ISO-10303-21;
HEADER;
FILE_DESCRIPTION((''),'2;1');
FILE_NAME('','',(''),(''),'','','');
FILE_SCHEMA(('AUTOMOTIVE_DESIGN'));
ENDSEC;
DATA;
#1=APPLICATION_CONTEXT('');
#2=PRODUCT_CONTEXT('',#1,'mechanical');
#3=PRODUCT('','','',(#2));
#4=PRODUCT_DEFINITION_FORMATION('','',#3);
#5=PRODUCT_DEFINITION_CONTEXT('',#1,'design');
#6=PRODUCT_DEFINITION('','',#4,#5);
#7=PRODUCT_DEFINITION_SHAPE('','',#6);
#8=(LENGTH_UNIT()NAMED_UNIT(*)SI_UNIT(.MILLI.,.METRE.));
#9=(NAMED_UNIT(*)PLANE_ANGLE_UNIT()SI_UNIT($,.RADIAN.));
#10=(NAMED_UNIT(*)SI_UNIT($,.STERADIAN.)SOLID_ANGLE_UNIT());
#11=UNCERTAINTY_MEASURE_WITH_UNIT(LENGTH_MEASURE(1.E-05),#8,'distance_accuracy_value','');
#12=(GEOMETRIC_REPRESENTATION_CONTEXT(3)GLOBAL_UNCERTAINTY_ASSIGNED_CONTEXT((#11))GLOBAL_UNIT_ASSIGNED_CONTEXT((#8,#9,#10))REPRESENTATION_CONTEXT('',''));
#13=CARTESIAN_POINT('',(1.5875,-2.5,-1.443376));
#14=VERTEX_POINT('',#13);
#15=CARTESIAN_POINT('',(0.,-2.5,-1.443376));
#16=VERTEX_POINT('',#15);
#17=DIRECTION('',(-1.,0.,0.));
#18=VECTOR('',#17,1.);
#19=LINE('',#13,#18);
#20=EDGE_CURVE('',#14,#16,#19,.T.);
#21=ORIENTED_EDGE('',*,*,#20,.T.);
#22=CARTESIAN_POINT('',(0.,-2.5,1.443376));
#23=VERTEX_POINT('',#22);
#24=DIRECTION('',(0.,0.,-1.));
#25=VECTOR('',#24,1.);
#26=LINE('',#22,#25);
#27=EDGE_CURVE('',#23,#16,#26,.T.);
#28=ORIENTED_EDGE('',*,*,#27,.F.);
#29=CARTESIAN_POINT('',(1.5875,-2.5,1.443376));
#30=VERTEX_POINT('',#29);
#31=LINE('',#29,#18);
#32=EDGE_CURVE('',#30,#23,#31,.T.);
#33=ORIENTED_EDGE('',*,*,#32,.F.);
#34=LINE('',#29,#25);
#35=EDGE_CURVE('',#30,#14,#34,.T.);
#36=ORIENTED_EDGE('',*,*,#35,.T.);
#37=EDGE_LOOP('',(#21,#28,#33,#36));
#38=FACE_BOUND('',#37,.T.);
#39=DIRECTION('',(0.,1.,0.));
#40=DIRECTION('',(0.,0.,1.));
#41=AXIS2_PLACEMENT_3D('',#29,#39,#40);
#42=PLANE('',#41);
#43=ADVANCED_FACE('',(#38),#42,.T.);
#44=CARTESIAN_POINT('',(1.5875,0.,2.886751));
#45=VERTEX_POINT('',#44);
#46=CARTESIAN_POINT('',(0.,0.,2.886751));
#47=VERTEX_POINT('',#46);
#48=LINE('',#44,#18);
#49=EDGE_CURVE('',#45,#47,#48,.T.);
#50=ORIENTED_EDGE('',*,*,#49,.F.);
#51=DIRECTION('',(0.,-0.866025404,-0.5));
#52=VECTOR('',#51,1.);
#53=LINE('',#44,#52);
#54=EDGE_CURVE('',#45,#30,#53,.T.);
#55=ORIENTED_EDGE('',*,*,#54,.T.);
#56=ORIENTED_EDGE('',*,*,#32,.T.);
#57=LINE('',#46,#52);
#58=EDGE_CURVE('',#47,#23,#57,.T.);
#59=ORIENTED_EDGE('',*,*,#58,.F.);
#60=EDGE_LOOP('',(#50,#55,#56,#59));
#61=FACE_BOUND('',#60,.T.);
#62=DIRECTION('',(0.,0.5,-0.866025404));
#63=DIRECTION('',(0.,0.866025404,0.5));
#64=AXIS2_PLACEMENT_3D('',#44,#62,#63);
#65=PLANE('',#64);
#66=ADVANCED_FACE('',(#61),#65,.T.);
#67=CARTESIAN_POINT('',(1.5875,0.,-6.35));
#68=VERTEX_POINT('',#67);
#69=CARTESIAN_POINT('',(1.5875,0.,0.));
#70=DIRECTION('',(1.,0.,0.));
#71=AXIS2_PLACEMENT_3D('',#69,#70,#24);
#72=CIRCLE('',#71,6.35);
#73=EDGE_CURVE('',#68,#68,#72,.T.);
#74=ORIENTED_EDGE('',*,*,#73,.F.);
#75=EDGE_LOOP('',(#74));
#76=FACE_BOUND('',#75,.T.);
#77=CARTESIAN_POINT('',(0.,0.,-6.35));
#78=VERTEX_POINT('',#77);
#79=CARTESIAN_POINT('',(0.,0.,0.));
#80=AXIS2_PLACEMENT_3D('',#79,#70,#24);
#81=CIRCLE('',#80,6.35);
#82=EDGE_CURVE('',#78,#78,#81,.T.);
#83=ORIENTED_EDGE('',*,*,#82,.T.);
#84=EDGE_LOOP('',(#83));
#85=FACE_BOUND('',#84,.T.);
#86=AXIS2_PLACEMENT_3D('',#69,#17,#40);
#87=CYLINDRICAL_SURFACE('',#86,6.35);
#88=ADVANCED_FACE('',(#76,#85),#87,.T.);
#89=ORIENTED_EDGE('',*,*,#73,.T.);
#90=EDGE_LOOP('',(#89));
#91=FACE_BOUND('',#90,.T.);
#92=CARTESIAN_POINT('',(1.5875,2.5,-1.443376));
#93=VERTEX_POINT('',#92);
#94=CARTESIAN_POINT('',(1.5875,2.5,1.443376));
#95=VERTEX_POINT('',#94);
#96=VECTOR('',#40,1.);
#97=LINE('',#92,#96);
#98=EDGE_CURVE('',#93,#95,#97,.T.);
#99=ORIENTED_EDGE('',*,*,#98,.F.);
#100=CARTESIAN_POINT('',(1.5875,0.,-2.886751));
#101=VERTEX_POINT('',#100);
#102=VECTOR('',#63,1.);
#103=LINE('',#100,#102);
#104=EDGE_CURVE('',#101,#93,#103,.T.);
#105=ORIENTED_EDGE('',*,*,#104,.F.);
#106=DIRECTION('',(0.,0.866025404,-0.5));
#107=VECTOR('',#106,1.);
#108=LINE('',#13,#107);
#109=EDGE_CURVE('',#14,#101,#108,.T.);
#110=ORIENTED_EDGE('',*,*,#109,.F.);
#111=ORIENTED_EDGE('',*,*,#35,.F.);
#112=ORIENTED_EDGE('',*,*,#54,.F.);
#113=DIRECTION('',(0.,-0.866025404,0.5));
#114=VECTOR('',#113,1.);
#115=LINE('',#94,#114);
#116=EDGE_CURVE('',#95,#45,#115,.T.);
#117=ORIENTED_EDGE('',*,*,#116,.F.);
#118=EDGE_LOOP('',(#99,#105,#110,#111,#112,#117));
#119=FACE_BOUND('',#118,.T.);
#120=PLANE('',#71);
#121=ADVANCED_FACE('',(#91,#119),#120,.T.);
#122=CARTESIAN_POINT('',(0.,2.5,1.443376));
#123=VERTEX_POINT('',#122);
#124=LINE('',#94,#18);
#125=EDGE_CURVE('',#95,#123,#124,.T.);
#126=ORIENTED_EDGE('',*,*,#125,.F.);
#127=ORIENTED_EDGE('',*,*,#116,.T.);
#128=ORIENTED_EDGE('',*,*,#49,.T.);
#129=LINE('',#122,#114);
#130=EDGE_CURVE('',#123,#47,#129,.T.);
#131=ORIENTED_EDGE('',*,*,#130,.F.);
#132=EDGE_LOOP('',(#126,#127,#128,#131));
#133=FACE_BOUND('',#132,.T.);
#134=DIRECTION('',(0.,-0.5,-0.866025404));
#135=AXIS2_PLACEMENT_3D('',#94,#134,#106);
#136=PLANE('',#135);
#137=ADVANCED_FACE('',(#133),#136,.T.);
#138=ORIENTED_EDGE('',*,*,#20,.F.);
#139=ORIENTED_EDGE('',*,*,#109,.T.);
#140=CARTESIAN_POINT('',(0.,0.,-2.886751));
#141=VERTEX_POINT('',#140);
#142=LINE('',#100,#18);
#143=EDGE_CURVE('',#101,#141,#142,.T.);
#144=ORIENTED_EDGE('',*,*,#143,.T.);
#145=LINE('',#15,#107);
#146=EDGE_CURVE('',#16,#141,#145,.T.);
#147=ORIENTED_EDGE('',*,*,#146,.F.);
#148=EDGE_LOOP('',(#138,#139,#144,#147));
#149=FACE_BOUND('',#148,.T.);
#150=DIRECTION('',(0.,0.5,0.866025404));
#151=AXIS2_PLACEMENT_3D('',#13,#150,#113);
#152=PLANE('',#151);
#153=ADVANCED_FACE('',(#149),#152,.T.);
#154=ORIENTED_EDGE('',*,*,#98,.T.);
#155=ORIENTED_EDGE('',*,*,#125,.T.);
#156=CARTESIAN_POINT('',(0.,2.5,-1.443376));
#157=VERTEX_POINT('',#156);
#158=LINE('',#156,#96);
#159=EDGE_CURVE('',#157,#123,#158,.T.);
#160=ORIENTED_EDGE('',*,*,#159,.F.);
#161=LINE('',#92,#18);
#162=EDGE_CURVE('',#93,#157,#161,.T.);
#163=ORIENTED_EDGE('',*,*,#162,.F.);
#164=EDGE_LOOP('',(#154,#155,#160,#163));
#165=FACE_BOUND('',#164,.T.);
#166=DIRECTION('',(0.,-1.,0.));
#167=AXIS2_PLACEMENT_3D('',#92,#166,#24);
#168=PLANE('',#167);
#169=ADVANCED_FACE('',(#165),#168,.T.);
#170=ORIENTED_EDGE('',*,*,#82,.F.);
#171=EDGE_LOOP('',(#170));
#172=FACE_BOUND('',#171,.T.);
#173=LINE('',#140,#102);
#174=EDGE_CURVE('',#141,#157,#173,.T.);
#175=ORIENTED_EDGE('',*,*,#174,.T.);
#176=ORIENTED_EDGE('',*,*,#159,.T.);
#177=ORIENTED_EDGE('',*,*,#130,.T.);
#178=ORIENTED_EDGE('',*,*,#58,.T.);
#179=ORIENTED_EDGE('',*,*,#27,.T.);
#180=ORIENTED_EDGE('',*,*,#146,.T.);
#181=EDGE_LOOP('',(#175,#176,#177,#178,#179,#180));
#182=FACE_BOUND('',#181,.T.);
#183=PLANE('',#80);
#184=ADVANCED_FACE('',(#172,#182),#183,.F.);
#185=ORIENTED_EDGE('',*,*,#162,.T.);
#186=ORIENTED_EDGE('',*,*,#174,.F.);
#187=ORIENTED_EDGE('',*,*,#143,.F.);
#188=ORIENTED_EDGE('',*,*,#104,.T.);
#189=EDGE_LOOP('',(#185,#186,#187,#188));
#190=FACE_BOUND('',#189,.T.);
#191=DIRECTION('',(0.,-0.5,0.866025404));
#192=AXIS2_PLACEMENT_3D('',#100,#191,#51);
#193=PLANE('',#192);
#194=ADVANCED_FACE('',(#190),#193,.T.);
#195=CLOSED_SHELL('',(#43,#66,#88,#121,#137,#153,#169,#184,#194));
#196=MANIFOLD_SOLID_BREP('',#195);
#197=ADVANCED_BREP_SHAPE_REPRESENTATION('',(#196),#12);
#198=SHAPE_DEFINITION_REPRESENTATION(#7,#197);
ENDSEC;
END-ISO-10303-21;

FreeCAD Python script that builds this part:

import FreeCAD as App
import Part
import Sketcher
from FreeCAD import Vector
Q = App.Units.Quantity

doc = App.newDocument("Part")
body = doc.addObject("PartDesign::Body", "Body")

# Sketch on YZ plane
sketch1 = doc.addObject("Sketcher::SketchObject", "Sketch")
body.addObject(sketch1)
sketch1.AttachmentSupport = (doc.YZ_Plane, [""])
sketch1.MapMode = "FlatFace"
sketch1.addGeometry([
    Part.Circle(Vector(0, 0, 0), Vector(0, 0, 1), 6.35),  # 0
    Part.LineSegment(Vector(2.5, -1.443376, 0), Vector(0, -2.886751, 0)),  # 1
    Part.LineSegment(Vector(0, -2.886751, 0), Vector(-2.5, -1.443376, 0)),  # 2
    Part.LineSegment(Vector(-2.5, -1.443376, 0), Vector(-2.5, 1.443376, 0)),  # 3
    Part.LineSegment(Vector(-2.5, 1.443376, 0), Vector(0, 2.886751, 0)),  # 4
    Part.LineSegment(Vector(0, 2.886751, 0), Vector(2.5, 1.443376, 0)),  # 5
    Part.LineSegment(Vector(2.5, 1.443376, 0), Vector(2.5, -1.443376, 0)),  # 6
], False)
sketch1.addConstraint([
    Sketcher.Constraint("Coincident", 1, 2, 2, 1),
    Sketcher.Constraint("Coincident", 2, 2, 3, 1),
    Sketcher.Constraint("Coincident", 3, 2, 4, 1),
    Sketcher.Constraint("Coincident", 4, 2, 5, 1),
    Sketcher.Constraint("Coincident", 5, 2, 6, 1),
    Sketcher.Constraint("Coincident", 6, 2, 1, 1),
    Sketcher.Constraint("Vertical", 3),
    Sketcher.Constraint("Vertical", 6),
    Sketcher.Constraint("Coincident", 0, 3, -1, 1),
    Sketcher.Constraint("Symmetric", 1, 2, 4, 2, -1, 1),
    Sketcher.Constraint("Symmetric", 2, 2, 5, 2, -1, 1),
    Sketcher.Constraint("PointOnObject", 1, 2, -2),
    Sketcher.Constraint("Parallel", 1, 4),
    Sketcher.Constraint("Horizontal", 3, 2, 5, 2),
    Sketcher.Constraint("Diameter", 0, Q("0.5 in")),
    Sketcher.Constraint("Angle", 1, Q("-150 deg")),
    Sketcher.Constraint("DistanceY", 3, 1, 3, 2, 2.886751),
    Sketcher.Constraint("DistanceX", 2, 2, -1, 1, 2.5),
])
pad1 = doc.addObject("PartDesign::Pad", "Pad")
body.addObject(pad1)
pad1.Profile = sketch1
pad1.Length = Q("0.0625 in")

doc.recompute()
